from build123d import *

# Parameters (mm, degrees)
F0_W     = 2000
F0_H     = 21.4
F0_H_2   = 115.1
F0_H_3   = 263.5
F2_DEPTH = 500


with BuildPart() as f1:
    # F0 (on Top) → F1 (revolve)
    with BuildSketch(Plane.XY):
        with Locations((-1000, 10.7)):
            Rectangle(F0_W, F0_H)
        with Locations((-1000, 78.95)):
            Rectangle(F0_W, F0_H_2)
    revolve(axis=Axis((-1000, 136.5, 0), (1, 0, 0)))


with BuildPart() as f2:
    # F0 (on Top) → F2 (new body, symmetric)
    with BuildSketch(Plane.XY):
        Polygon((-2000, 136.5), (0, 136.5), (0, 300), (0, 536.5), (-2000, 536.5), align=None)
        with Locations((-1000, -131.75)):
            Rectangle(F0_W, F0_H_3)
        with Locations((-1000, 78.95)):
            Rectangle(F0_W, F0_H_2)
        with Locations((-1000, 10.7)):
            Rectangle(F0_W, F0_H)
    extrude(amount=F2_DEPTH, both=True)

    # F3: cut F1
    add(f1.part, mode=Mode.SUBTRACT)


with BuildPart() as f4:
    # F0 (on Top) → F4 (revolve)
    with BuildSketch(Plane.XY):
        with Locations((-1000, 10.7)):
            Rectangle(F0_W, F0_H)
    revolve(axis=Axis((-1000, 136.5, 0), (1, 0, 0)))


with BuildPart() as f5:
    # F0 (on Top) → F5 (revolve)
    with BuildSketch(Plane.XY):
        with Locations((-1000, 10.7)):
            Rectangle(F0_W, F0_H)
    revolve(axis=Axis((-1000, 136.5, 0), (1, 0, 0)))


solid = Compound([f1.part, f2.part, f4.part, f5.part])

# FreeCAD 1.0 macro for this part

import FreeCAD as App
import Part
import Sketcher
Q = App.Units.Quantity


def add_polygon(sketch, points):
    """Adds a closed chain of lines whose ends are joined by coincident constraints."""
    first, n = sketch.GeometryCount, len(points)
    for a, b in zip(points, points[1:] + points[:1]):
        sketch.addGeometry(Part.LineSegment(App.Vector(*a, 0), App.Vector(*b, 0)), False)
    for i in range(n):
        sketch.addConstraint(Sketcher.Constraint("Coincident", first + i, 2, first + (i + 1) % n, 1))

doc = App.newDocument("Part")
body = doc.addObject("PartDesign::Body", "Body")

sketch1 = body.newObject("Sketcher::SketchObject", "Sketch")
sketch1.AttachmentSupport = (doc.getObject("XY_Plane"), [""])
sketch1.MapMode = "FlatFace"
add_polygon(sketch1, [(-2000, 0), (0, 0), (0, 136), (-2000, 136)])
sketch1.addGeometry(Part.LineSegment(App.Vector(-2000, 136, 0), App.Vector(0, 136, 0)), True)
sketch1.addConstraint([
    Sketcher.Constraint("Horizontal", 0),
    Sketcher.Constraint("Vertical", 1),
    Sketcher.Constraint("Horizontal", 2),
    Sketcher.Constraint("Vertical", 3),
    Sketcher.Constraint("Horizontal", 4),
    Sketcher.Constraint("Coincident", 0, 2, -1, 1),
    Sketcher.Constraint("Coincident", 4, 1, 2, 2),
    Sketcher.Constraint("PointOnObject", 4, 2, -2),
    Sketcher.Constraint("DistanceX", 0, 1, 0, 2, Q("2000 mm")),
    Sketcher.Constraint("DistanceY", 1, 1, 1, 2, Q("136.5 mm")),
])
revolution = body.newObject("PartDesign::Revolution", "Revolution")
revolution.Profile = sketch1
revolution.ReferenceAxis = (sketch1, ["Axis0"])
revolution.Angle = 360
body2 = doc.addObject("PartDesign::Body", "Body001")

sketch2 = body2.newObject("Sketcher::SketchObject", "Sketch001")
sketch2.AttachmentSupport = (doc.getObject("XY_Plane001"), [""])
sketch2.MapMode = "FlatFace"
add_polygon(sketch2, [(0, 536), (-2000, 536), (-2000, -264), (0, -264)])
sketch2.addConstraint([
    Sketcher.Constraint("Horizontal", 0),
    Sketcher.Constraint("Vertical", 1),
    Sketcher.Constraint("Horizontal", 2),
    Sketcher.Constraint("Vertical", 3),
    Sketcher.Constraint("PointOnObject", 2, 2, -2),
    Sketcher.Constraint("DistanceX", 0, 2, 0, 1, Q("2000 mm")),
    Sketcher.Constraint("DistanceY", 1, 2, 1, 1, Q("800 mm")),
    Sketcher.Constraint("DistanceY", -1, 1, 0, 2, Q("536.5 mm")),
])
pad1 = body2.newObject("PartDesign::Pad", "Pad")
pad1.Profile = sketch2
pad1.Length = 1000
pad1.Midplane = True
doc.recompute()

body3 = doc.addObject("PartDesign::Body", "Body002")
body3.BaseFeature = body
boolean = body2.newObject("PartDesign::Boolean", "Boolean")
boolean.Type = "Cut"
boolean.addObjects([body3])
doc.recompute()
body4 = doc.addObject("PartDesign::Body", "Body003")

sketch3 = body4.newObject("Sketcher::SketchObject", "Sketch002")
sketch3.AttachmentSupport = (doc.getObject("XY_Plane003"), [""])
sketch3.MapMode = "FlatFace"
add_polygon(sketch3, [(-2000, 21), (-2000, 0), (0, 0), (0, 21)])
sketch3.addGeometry(Part.LineSegment(App.Vector(-2000, 136, 0), App.Vector(0, 136, 0)), True)
sketch3.addConstraint([
    Sketcher.Constraint("Vertical", 0),
    Sketcher.Constraint("Horizontal", 1),
    Sketcher.Constraint("Vertical", 2),
    Sketcher.Constraint("Horizontal", 3),
    Sketcher.Constraint("Horizontal", 4),
    Sketcher.Constraint("Coincident", 1, 2, -1, 1),
    Sketcher.Constraint("PointOnObject", 4, 2, -2),
    Sketcher.Constraint("Vertical", 3, 2, 4, 1),
    Sketcher.Constraint("DistanceX", 1, 1, 1, 2, Q("2000 mm")),
    Sketcher.Constraint("DistanceY", 0, 2, 0, 1, Q("21.4 mm")),
    Sketcher.Constraint("DistanceY", -1, 1, 4, 1, Q("136.5 mm")),
])
revolution2 = body4.newObject("PartDesign::Revolution", "Revolution001")
revolution2.Profile = sketch3
revolution2.ReferenceAxis = (sketch3, ["Axis0"])
revolution2.Angle = 360
body5 = doc.addObject("PartDesign::Body", "Body004")

sketch4 = body5.newObject("Sketcher::SketchObject", "Sketch003")
sketch4.AttachmentSupport = (doc.getObject("XY_Plane004"), [""])
sketch4.MapMode = "FlatFace"
add_polygon(sketch4, [(-2000, 21), (-2000, 0), (0, 0), (0, 21)])
sketch4.addGeometry(Part.LineSegment(App.Vector(-2000, 136, 0), App.Vector(0, 136, 0)), True)
sketch4.addConstraint([
    Sketcher.Constraint("Vertical", 0),
    Sketcher.Constraint("Horizontal", 1),
    Sketcher.Constraint("Vertical", 2),
    Sketcher.Constraint("Horizontal", 3),
    Sketcher.Constraint("Horizontal", 4),
    Sketcher.Constraint("Coincident", 1, 2, -1, 1),
    Sketcher.Constraint("PointOnObject", 4, 2, -2),
    Sketcher.Constraint("Vertical", 3, 2, 4, 1),
    Sketcher.Constraint("DistanceX", 1, 1, 1, 2, Q("2000 mm")),
    Sketcher.Constraint("DistanceY", 0, 2, 0, 1, Q("21.4 mm")),
    Sketcher.Constraint("DistanceY", -1, 1, 4, 1, Q("136.5 mm")),
])
revolution3 = body5.newObject("PartDesign::Revolution", "Revolution002")
revolution3.Profile = sketch4
revolution3.ReferenceAxis = (sketch4, ["Axis0"])
revolution3.Angle = 360

doc.recompute()
